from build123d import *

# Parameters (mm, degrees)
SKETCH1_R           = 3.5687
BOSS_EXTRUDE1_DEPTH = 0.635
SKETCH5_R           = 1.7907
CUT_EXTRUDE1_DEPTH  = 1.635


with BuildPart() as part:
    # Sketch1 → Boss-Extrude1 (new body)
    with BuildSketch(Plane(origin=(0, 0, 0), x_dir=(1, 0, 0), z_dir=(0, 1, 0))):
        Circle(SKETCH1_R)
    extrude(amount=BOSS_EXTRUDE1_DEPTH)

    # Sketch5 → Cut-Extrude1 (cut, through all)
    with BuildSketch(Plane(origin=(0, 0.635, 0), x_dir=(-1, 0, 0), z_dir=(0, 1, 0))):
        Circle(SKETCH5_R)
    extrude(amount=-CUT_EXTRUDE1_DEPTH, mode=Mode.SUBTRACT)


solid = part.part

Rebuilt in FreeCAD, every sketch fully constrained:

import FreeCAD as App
import Part
import Sketcher
Q = App.Units.Quantity

doc = App.newDocument("Part")
params = doc.addObject("Spreadsheet::Sheet", "Params")
for row, (alias, value) in enumerate([
    ("sketch1_diameter", "0.281 in"),
    ("pad1_length", "0.025 in"),
    ("sketch2_diameter", "0.141 in"),
], start=1):
    params.set(f"A{row}", alias)
    params.set(f"B{row}", "=" + value)
    params.setAlias(f"B{row}", alias)

body = doc.addObject("PartDesign::Body", "Body")

# Sketch on XZ plane
sketch1 = doc.addObject("Sketcher::SketchObject", "Sketch")
body.addObject(sketch1)
sketch1.AttachmentSupport = (doc.XZ_Plane, [""])
sketch1.MapMode = "FlatFace"
sketch1.addGeometry(Part.Circle(App.Vector(0, 0, 0), App.Vector(0, 0, 1), 3.6), False)
sketch1.addConstraint([
    Sketcher.Constraint("Coincident", 0, 3, -1, 1),
    Sketcher.Constraint("Diameter", 0, Q("0.281 in")),
])
sketch1.setExpression("Constraints[1]", "Params.sketch1_diameter")
pad1 = doc.addObject("PartDesign::Pad", "Pad")
body.addObject(pad1)
pad1.Profile = sketch1
pad1.setExpression("Length", "Params.pad1_length")
pad1.Reversed = True

# Sketch on XZ plane
sketch2 = doc.addObject("Sketcher::SketchObject", "Sketch001")
body.addObject(sketch2)
sketch2.AttachmentSupport = (doc.XZ_Plane, [""])
sketch2.MapMode = "FlatFace"
sketch2.AttachmentOffset = App.Placement(App.Vector(0, 0, -0.025 * 25.4), App.Rotation())
sketch2.addGeometry(Part.Circle(App.Vector(0, 0, 0), App.Vector(0, 0, 1), 1.8), False)
sketch2.addConstraint([
    Sketcher.Constraint("Coincident", 0, 3, -1, 1),
    Sketcher.Constraint("Diameter", 0, Q("0.141 in")),
])
sketch2.setExpression("Constraints[1]", "Params.sketch2_diameter")
pocket1 = doc.addObject("PartDesign::Pocket", "Pocket")
body.addObject(pocket1)
pocket1.Profile = sketch2
pocket1.Type = "ThroughAll"
pocket1.Reversed = True

doc.recompute()
